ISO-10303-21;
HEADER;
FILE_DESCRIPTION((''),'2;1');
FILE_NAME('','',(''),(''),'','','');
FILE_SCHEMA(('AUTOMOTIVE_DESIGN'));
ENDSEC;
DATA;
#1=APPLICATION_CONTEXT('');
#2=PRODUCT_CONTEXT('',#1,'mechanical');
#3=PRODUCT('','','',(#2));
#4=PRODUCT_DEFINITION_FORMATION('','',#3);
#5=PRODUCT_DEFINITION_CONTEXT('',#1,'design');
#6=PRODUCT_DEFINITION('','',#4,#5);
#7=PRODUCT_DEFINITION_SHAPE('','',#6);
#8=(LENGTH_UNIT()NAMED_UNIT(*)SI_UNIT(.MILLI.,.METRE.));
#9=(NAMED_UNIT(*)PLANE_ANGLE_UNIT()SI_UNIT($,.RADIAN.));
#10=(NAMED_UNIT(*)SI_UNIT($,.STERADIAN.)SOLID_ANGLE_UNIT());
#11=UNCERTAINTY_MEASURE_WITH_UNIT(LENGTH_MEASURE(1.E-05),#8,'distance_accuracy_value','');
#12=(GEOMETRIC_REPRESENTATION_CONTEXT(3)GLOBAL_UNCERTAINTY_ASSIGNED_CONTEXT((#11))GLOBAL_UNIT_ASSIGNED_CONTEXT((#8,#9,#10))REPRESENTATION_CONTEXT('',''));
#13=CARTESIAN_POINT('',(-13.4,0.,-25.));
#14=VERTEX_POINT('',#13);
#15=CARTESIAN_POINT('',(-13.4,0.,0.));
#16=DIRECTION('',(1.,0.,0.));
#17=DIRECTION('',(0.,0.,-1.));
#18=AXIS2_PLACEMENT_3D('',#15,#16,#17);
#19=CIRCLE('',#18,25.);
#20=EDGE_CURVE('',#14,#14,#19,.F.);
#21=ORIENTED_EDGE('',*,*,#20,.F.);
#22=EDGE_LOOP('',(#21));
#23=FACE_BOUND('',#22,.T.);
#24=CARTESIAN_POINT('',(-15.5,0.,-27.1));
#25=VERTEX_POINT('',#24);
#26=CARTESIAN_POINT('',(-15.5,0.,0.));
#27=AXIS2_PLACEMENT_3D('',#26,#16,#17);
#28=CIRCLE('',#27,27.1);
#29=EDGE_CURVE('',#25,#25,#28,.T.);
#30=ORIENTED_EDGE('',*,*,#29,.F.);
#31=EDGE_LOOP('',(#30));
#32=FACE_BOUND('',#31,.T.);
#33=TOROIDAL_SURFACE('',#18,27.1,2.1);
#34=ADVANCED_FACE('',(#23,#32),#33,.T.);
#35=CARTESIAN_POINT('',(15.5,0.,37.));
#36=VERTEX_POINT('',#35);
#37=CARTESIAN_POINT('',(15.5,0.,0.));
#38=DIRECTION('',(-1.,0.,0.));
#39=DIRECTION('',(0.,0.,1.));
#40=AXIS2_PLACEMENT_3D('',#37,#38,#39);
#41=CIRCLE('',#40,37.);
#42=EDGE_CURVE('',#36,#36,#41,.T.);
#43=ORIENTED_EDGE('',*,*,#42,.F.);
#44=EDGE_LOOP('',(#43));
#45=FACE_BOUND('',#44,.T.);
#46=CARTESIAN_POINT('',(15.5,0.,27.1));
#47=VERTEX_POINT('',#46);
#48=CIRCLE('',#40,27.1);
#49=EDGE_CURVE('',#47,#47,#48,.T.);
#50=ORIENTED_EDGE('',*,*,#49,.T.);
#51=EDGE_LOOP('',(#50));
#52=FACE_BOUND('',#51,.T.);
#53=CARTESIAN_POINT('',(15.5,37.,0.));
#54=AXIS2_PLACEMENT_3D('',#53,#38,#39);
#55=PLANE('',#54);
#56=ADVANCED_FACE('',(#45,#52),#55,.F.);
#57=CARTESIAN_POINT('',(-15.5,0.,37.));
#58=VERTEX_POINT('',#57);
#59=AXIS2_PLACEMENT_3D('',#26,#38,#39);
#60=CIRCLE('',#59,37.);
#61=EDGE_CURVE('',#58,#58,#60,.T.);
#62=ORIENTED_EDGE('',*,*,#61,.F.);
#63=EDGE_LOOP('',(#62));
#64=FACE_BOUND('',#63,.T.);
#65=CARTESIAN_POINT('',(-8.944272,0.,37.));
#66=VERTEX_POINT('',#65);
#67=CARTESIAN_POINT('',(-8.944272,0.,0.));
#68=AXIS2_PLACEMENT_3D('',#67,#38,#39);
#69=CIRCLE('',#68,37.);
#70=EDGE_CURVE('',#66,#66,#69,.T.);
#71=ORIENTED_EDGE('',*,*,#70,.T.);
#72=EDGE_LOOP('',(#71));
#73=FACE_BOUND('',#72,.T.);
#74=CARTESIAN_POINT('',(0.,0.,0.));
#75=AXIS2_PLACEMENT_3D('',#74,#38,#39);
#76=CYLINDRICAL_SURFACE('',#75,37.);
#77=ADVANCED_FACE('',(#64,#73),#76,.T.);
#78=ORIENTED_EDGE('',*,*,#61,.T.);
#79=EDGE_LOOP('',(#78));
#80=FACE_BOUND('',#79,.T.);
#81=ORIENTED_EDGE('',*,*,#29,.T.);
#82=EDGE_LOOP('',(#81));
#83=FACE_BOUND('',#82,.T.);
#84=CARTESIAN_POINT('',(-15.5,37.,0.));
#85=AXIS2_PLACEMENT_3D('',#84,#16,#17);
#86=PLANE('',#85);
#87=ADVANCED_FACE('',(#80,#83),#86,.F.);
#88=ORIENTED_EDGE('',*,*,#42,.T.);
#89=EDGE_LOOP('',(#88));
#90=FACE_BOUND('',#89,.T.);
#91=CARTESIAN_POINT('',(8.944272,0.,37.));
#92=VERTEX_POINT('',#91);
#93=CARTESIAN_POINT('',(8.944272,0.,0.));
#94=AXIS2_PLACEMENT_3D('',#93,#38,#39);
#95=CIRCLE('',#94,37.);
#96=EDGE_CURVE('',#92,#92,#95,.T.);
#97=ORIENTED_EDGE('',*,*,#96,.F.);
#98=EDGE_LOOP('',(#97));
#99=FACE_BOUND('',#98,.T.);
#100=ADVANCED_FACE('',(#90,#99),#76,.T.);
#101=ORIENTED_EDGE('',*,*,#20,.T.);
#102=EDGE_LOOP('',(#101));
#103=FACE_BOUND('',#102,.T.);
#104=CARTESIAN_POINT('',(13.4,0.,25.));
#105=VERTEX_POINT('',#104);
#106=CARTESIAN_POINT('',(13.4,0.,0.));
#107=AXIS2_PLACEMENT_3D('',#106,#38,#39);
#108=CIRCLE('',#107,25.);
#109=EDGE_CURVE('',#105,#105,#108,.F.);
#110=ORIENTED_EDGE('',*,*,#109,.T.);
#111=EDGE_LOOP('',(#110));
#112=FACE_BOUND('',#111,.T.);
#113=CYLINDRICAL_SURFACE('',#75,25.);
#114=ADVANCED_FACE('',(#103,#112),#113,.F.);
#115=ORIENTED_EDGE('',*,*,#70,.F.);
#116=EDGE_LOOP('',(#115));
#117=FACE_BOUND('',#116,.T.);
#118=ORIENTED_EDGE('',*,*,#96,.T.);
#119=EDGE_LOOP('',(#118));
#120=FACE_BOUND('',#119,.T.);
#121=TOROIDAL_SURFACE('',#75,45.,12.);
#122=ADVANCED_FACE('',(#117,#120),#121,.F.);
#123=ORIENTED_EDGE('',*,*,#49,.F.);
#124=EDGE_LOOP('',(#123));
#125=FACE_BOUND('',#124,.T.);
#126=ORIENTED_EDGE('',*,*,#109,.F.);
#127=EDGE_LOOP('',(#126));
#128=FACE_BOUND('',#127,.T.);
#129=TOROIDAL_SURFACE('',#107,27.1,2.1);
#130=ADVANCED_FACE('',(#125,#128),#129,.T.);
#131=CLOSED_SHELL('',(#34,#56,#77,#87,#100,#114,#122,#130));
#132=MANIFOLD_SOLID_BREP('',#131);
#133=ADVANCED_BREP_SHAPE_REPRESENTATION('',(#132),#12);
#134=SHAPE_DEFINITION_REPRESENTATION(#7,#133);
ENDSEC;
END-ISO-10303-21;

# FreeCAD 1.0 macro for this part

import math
import FreeCAD as App
import Part
import Sketcher
from FreeCAD import Vector


def edges_at(feature, points):
    """Names of the edges that pass closest to the given points."""
    edges = feature.Shape.Edges
    near = lambda p: min(range(len(edges)), key=lambda i: edges[i].distToShape(Part.Vertex(*p))[0])
    return sorted({f"Edge{near(p) + 1}" for p in points})

doc = App.newDocument("Part")
body = doc.addObject("PartDesign::Body", "Body")

# Sketch on XY plane
sketch1 = body.newObject("Sketcher::SketchObject", "Sketch")
sketch1.AttachmentSupport = (doc.getObject("XY_Plane"), [""])
sketch1.MapMode = "FlatFace"
sketch1.addGeometry([
    Part.LineSegment(Vector(-9, 37, 0), Vector(-16, 37, 0)),  # 0
    Part.LineSegment(Vector(-16, 37, 0), Vector(-16, 25, 0)),  # 1
    Part.LineSegment(Vector(-16, 25, 0), Vector(16, 25, 0)),  # 2
    Part.LineSegment(Vector(16, 25, 0), Vector(16, 37, 0)),  # 3
    Part.LineSegment(Vector(16, 37, 0), Vector(9, 37, 0)),  # 4
    Part.ArcOfCircle(Part.Circle(Vector(0, 45, 0), Vector(0, 0, 1), 12), math.radians(-138), math.radians(-42)),  # 5
], False)
sketch1.addConstraint([
    Sketcher.Constraint("Coincident", 0, 2, 1, 1),
    Sketcher.Constraint("Coincident", 1, 2, 2, 1),
    Sketcher.Constraint("Coincident", 2, 2, 3, 1),
    Sketcher.Constraint("Coincident", 3, 2, 4, 1),
    Sketcher.Constraint("Coincident", 4, 2, 5, 2),
    Sketcher.Constraint("Coincident", 5, 1, 0, 1),
    Sketcher.Constraint("Horizontal", 0),
    Sketcher.Constraint("Vertical", 1),
    Sketcher.Constraint("Horizontal", 2),
    Sketcher.Constraint("Vertical", 3),
    Sketcher.Constraint("Horizontal", 4),
    Sketcher.Constraint("Symmetric", 0, 2, 3, 2, -2),
    Sketcher.Constraint("PointOnObject", 5, 3, -2),
    Sketcher.Constraint("Radius", 5, 12.0),
    Sketcher.Constraint("DistanceX", 2, 1, 2, 2, 31.0),
    Sketcher.Constraint("DistanceY", 1, 2, 1, 1, 12.0),
    Sketcher.Constraint("DistanceY", -1, 1, 5, 3, 45.0),
    Sketcher.Constraint("DistanceY", -1, 1, 0, 2, 37.0),
])
revolution = body.newObject("PartDesign::Revolution", "Revolution")
revolution.Profile = sketch1
revolution.ReferenceAxis = (sketch1, ["H_Axis"])
revolution.Angle = 360
doc.recompute()

fillet = body.newObject("PartDesign::Fillet", "Fillet")
fillet.Base = (revolution, edges_at(revolution, [(15.5, -25, 0), (-15.5, -25, 0)]))
fillet.Radius = 2.1

doc.recompute()
